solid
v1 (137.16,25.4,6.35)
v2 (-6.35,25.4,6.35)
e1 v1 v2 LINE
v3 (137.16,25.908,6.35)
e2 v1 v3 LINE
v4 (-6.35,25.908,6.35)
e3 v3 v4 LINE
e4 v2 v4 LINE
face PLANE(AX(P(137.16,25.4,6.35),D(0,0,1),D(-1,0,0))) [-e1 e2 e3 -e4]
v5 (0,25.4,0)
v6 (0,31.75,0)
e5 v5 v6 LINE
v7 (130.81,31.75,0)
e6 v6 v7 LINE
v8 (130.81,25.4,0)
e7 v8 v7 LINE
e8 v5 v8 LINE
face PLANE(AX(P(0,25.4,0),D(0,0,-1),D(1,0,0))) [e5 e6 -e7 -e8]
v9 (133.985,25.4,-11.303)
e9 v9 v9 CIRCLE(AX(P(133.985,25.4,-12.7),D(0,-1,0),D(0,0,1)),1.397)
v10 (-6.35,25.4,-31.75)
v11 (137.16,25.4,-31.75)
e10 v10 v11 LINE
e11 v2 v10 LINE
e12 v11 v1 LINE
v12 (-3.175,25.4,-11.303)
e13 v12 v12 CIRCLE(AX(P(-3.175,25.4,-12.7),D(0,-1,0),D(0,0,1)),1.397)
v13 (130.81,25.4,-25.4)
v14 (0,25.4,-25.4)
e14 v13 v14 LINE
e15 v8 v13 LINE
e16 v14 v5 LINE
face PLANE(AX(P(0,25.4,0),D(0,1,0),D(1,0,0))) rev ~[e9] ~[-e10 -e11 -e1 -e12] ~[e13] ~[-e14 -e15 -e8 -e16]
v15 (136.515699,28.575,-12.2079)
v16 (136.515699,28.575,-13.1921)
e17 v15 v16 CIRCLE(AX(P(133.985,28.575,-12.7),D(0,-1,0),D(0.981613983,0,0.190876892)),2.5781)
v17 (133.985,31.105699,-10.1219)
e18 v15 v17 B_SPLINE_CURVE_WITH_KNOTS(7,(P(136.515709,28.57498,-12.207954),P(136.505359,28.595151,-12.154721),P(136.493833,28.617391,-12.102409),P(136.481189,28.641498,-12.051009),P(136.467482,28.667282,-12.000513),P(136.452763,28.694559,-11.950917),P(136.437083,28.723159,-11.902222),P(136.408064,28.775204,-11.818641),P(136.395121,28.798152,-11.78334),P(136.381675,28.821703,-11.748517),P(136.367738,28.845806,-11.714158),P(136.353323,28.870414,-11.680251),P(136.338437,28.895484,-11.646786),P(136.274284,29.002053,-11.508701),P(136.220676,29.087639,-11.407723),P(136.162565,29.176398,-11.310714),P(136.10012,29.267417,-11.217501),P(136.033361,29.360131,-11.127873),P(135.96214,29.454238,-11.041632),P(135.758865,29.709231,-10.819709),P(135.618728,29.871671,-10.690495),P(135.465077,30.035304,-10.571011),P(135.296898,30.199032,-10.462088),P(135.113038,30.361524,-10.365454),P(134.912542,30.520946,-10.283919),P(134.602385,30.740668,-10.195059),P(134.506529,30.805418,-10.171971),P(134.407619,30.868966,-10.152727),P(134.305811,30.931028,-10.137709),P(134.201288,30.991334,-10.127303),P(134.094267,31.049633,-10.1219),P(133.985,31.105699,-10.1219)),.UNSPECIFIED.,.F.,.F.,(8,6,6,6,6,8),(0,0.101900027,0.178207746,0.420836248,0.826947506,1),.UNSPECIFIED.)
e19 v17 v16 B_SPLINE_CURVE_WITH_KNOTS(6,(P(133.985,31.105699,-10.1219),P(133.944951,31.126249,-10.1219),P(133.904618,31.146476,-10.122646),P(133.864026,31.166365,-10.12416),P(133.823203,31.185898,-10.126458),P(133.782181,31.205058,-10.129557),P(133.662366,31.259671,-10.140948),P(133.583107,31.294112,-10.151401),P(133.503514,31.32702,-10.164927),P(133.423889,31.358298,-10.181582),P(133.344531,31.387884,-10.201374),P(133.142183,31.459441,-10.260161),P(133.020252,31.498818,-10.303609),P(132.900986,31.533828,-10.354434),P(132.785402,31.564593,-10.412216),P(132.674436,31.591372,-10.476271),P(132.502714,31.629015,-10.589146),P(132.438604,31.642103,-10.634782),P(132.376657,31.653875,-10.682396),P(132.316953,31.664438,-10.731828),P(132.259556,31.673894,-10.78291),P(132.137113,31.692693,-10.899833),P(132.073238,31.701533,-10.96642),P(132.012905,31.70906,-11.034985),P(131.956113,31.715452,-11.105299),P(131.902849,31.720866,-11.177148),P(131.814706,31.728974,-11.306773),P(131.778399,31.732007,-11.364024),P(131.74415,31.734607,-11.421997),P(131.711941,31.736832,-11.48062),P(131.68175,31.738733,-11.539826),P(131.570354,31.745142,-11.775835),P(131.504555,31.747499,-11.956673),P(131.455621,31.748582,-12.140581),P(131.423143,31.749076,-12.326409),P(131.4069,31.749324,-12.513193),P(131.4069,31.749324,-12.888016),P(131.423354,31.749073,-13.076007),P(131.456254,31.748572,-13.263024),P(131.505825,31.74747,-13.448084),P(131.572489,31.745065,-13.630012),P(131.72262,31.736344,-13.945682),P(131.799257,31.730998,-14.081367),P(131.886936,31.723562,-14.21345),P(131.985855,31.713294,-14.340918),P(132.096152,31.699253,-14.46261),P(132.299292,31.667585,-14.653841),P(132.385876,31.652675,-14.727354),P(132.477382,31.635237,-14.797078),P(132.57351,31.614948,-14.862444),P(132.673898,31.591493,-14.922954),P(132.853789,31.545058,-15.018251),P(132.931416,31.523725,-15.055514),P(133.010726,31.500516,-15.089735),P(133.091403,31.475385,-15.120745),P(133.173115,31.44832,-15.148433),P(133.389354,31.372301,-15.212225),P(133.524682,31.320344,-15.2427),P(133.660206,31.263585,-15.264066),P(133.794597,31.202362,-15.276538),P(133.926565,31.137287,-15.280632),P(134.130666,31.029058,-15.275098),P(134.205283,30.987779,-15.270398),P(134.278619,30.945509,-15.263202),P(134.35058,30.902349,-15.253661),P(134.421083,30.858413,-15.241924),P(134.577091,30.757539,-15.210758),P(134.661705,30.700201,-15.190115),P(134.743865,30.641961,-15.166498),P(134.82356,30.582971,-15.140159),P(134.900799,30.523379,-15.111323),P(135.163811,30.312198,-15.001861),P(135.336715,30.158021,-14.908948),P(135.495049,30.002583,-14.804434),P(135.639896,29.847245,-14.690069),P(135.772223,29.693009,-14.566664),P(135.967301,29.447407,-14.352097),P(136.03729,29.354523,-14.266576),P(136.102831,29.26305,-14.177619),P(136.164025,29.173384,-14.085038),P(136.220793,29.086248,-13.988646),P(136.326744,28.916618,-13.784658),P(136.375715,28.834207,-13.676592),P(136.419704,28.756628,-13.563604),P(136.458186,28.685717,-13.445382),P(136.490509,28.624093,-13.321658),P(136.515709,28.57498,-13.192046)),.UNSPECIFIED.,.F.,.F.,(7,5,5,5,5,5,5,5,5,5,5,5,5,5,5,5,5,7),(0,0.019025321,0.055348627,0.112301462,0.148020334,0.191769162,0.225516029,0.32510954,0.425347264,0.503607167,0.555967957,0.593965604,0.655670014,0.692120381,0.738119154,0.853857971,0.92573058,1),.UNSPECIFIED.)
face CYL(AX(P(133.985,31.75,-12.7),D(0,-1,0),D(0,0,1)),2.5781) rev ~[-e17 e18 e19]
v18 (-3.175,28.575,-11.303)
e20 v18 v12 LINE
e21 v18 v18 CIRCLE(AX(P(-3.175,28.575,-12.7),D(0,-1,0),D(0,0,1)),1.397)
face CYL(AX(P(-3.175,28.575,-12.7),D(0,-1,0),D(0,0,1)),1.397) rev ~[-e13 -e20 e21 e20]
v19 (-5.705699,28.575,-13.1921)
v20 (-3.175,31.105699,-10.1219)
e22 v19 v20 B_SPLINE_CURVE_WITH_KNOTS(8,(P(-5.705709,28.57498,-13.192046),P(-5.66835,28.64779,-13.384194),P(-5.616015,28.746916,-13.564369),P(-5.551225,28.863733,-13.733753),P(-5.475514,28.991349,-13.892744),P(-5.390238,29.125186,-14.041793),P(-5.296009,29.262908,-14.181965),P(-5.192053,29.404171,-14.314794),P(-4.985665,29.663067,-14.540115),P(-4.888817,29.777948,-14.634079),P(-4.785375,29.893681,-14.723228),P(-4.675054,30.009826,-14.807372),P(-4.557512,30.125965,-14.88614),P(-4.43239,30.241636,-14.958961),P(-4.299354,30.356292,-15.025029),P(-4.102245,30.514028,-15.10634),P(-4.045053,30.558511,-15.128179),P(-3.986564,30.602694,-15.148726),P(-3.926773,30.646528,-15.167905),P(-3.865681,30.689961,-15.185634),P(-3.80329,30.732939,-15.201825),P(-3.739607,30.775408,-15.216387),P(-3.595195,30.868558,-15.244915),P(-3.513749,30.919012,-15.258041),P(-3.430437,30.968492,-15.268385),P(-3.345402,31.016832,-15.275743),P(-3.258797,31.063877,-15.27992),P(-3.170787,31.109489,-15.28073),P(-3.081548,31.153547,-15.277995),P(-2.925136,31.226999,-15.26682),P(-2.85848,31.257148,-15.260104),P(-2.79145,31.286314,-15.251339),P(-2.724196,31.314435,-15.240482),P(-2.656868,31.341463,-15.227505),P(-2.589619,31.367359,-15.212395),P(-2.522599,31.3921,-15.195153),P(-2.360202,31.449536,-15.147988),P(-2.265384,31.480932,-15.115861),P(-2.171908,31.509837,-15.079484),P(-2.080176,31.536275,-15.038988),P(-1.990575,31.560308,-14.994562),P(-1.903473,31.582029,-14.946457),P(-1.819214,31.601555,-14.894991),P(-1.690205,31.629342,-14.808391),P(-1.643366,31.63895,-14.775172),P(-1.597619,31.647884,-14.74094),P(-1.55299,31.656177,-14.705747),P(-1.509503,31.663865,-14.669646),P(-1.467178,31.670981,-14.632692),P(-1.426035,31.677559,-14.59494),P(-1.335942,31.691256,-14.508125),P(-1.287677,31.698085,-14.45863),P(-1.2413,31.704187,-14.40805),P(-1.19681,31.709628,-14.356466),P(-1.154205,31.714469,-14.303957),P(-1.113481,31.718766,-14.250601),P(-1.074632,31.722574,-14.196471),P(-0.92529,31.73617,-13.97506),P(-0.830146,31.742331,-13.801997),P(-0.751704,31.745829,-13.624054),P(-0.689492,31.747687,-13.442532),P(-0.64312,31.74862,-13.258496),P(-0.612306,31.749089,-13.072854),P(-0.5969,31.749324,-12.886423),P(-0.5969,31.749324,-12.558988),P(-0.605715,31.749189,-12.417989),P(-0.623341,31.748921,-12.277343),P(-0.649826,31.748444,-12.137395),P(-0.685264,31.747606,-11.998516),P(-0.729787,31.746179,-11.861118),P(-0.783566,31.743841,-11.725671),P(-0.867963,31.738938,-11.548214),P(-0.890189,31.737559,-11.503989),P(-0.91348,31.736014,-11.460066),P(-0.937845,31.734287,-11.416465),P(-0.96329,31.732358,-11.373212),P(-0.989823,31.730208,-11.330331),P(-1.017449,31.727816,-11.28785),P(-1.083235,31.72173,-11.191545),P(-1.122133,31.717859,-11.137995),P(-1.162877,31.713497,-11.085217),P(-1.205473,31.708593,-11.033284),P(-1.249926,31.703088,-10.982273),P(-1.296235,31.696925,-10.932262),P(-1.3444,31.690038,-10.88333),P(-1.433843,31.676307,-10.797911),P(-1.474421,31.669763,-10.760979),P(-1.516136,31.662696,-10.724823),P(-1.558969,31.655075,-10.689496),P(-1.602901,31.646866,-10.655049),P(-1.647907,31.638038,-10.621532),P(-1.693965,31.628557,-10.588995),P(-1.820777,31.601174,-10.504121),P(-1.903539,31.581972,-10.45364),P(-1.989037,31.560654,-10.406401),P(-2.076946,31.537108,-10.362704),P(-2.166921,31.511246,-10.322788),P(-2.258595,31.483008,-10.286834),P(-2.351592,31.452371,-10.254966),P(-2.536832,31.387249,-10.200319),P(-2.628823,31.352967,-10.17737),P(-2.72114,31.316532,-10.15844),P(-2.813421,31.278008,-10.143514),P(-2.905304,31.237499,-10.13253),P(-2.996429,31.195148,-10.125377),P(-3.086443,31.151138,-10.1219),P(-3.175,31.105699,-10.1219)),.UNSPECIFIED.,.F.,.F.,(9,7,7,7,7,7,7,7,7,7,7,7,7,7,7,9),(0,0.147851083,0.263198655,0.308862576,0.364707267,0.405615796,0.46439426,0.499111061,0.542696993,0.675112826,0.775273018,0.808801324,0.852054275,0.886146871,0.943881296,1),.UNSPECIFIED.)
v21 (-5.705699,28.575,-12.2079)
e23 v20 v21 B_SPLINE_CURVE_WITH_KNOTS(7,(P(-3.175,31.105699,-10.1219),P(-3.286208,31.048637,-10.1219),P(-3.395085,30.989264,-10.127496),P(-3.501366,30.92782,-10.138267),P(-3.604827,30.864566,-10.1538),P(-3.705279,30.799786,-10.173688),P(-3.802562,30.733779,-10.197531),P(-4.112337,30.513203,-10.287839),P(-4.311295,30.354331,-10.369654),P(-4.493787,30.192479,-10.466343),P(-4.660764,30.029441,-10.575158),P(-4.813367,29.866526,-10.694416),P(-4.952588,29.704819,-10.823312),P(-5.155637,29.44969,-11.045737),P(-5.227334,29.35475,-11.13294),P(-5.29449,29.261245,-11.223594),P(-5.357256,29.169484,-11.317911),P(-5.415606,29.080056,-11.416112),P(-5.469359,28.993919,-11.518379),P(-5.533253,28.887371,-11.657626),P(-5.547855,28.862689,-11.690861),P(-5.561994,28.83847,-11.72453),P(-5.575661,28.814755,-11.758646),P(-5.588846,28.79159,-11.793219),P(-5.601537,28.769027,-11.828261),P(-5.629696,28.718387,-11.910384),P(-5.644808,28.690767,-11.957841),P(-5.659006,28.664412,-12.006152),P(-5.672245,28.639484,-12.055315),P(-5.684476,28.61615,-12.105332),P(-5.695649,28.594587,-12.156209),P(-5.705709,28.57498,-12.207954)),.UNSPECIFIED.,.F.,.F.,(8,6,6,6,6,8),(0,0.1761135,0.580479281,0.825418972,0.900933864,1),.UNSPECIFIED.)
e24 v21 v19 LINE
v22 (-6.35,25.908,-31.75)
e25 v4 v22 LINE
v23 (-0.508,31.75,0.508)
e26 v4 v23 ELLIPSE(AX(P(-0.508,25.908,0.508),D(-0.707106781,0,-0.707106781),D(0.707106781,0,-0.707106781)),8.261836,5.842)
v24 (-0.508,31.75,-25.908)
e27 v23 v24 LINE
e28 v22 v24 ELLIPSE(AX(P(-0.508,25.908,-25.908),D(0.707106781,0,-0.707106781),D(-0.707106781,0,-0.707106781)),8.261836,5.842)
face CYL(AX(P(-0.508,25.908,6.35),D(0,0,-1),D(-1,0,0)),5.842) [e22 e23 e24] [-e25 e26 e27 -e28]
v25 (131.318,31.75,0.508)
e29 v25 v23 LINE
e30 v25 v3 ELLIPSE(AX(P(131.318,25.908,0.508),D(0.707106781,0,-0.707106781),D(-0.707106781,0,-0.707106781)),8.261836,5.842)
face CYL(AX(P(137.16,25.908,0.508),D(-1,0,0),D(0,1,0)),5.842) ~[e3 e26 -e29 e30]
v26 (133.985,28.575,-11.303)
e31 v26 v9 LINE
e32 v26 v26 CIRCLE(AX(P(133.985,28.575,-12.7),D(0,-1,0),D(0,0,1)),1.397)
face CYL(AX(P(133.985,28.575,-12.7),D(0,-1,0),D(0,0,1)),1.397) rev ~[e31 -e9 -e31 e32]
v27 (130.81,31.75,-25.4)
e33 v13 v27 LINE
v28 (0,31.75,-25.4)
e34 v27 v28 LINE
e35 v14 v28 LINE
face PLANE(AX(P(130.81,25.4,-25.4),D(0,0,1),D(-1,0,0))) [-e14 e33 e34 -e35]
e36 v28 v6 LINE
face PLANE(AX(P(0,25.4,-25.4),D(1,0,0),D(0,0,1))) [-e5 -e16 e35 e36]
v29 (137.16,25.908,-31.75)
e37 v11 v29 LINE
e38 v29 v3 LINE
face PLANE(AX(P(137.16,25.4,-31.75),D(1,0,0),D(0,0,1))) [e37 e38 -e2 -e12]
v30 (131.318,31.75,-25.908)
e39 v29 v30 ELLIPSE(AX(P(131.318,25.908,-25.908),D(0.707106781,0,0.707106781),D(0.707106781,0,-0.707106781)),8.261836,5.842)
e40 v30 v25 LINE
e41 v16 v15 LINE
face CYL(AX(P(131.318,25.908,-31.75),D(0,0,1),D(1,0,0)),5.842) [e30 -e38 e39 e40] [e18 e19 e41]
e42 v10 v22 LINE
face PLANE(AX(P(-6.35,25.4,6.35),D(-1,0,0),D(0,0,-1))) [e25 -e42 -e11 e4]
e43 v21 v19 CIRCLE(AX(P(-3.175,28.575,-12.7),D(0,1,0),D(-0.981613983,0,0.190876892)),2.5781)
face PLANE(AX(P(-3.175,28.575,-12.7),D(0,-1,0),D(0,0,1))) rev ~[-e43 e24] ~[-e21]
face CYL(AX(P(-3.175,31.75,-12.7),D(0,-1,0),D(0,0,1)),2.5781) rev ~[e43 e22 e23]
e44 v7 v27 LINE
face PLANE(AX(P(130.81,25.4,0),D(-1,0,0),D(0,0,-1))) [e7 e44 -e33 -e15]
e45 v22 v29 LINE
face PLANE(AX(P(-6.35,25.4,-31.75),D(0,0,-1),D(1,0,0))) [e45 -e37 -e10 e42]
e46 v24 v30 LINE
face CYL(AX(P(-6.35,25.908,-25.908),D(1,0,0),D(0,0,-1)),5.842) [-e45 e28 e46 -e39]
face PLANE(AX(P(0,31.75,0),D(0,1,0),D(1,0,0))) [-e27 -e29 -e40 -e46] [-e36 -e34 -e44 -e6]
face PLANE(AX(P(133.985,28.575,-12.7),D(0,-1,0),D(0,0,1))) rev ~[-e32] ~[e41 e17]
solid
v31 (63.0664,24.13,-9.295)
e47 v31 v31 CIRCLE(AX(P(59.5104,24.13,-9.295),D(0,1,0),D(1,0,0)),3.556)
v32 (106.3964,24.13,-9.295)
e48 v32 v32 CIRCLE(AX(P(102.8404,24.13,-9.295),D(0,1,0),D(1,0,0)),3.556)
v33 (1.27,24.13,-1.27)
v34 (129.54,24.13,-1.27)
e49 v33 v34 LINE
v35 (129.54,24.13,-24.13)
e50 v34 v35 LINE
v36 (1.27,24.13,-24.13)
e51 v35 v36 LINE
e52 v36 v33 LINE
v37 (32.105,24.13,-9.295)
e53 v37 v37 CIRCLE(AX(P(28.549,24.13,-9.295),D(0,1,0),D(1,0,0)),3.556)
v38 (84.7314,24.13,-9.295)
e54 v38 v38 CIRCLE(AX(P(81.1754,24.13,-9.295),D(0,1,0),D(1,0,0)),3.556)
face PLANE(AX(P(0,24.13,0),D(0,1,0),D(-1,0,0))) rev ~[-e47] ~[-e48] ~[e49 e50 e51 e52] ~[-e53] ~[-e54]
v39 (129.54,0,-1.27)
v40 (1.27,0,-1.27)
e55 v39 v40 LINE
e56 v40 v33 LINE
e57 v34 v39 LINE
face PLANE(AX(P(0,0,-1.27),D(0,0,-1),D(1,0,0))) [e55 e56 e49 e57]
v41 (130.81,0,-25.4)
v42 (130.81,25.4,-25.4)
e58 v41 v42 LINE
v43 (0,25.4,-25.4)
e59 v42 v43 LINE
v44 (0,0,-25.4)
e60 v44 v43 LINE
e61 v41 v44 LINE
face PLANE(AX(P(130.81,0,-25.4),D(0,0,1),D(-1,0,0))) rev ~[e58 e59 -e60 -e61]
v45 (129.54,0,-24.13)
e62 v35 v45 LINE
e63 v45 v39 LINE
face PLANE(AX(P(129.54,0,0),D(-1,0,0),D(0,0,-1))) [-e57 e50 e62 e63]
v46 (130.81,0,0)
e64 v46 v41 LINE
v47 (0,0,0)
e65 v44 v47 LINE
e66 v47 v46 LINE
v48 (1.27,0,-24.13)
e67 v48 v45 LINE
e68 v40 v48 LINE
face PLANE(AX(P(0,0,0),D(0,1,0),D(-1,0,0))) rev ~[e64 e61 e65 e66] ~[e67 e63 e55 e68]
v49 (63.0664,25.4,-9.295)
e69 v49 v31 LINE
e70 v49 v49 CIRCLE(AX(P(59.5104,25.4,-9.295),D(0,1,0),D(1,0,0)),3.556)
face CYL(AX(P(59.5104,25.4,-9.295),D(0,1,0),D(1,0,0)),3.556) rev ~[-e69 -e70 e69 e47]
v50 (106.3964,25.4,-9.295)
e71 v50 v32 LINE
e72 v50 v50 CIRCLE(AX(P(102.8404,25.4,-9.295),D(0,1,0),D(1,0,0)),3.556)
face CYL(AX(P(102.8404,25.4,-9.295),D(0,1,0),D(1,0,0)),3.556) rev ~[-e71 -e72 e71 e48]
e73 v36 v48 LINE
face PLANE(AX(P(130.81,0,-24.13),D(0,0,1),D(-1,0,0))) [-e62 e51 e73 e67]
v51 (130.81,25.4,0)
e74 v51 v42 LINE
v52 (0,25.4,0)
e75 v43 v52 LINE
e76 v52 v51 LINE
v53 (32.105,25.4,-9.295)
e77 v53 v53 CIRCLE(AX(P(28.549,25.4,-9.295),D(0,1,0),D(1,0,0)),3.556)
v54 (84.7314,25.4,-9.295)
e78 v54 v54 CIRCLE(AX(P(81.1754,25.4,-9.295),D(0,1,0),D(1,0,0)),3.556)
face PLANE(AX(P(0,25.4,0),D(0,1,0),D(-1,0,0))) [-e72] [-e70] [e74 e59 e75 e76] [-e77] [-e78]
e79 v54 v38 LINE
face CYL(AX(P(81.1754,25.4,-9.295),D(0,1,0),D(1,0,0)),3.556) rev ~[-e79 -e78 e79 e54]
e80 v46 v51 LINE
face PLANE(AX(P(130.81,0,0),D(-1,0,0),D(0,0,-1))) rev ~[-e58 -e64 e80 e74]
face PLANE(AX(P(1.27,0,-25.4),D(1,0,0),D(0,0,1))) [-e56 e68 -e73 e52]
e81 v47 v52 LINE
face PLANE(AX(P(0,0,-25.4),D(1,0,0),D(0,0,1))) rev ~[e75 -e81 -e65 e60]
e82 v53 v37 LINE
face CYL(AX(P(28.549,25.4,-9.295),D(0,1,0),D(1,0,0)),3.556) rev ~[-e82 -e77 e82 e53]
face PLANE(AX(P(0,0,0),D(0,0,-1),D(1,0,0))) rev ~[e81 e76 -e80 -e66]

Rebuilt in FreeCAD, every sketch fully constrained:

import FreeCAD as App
import Part
import Sketcher

V = App.Vector
Q = App.Units.Quantity


def edges_at(feature, points):
    """Names of the edges that pass closest to the given points."""
    edges = feature.Shape.Edges
    near = lambda p: min(range(len(edges)), key=lambda i: edges[i].distToShape(Part.Vertex(*p))[0])
    return sorted({f"Edge{near(p) + 1}" for p in points})


def faces_at(feature, points):
    """Names of the faces that lie closest to the given points."""
    faces = feature.Shape.Faces
    near = lambda p: min(range(len(faces)), key=lambda i: faces[i].distToShape(Part.Vertex(*p))[0])
    return sorted({f"Face{near(p) + 1}" for p in points})

doc = App.newDocument("Part")
body = doc.addObject("PartDesign::Body", "Body")
body.AllowCompound = True

sketch1 = body.newObject("Sketcher::SketchObject", "Sketch")
sketch1.AttachmentSupport = (doc.getObject("XZ_Plane"), [""])
sketch1.MapMode = "FlatFace"
sketch1.addGeometry([
    Part.LineSegment(V(0, -25, 0), V(0, 0, 0)),
    Part.LineSegment(V(0, 0, 0), V(131, 0, 0)),
    Part.LineSegment(V(131, 0, 0), V(131, -25, 0)),
    Part.LineSegment(V(131, -25, 0), V(0, -25, 0)),
], False)
sketch1.addConstraint([
    Sketcher.Constraint("Coincident", 0, 2, 1, 1),
    Sketcher.Constraint("Coincident", 1, 2, 2, 1),
    Sketcher.Constraint("Coincident", 2, 2, 3, 1),
    Sketcher.Constraint("Coincident", 3, 2, 0, 1),
    Sketcher.Constraint("Vertical", 0),
    Sketcher.Constraint("Horizontal", 1),
    Sketcher.Constraint("Vertical", 2),
    Sketcher.Constraint("Horizontal", 3),
    Sketcher.Constraint("Coincident", 0, 2, -1, 1),
    Sketcher.Constraint("DistanceY", 0, 1, 0, 2, Q("1 in")),
    Sketcher.Constraint("DistanceX", 1, 1, 1, 2, Q("5.15 in")),
])
pad1 = body.newObject("PartDesign::Pad", "Pad")
pad1.Profile = sketch1
pad1.Length = Q("1 in")
pad1.Reversed = True
doc.recompute()

thickness = body.newObject("PartDesign::Thickness", "Thickness")
thickness.Base = (pad1, faces_at(pad1, [(87.207, 0, -8.467)]))
thickness.Value = Q("0.05 in")
thickness.Reversed = True
thickness.Join = "Intersection"

sketch2 = body.newObject("Sketcher::SketchObject", "Sketch001")
sketch2.AttachmentSupport = (doc.getObject("XZ_Plane"), [""])
sketch2.MapMode = "FlatFace"
sketch2.AttachmentOffset = App.Placement(V(0, 0, -1 * 25.4), App.Rotation())
sketch2.addGeometry([
    Part.Circle(V(28.5, -9.3, 0), V(0, 0, 1), 3.6),
    Part.Circle(V(59.5, -9.3, 0), V(0, 0, 1), 3.6),
    Part.Circle(V(81.2, -9.3, 0), V(0, 0, 1), 3.6),
    Part.Circle(V(102.8, -9.3, 0), V(0, 0, 1), 3.6),
], False)
sketch2.addConstraint([
    Sketcher.Constraint("Equal", 0, 1),
    Sketcher.Constraint("Equal", 1, 2),
    Sketcher.Constraint("Equal", 2, 3),
    Sketcher.Constraint("Horizontal", 0, 3, 1, 3),
    Sketcher.Constraint("Horizontal", 1, 3, 2, 3),
    Sketcher.Constraint("Horizontal", 2, 3, 3, 3),
    Sketcher.Constraint("Diameter", 0, Q("0.28 in")),
    Sketcher.Constraint("DistanceX", 0, 3, 2, 3, Q("2.0719 in")),
    Sketcher.Constraint("DistanceX", 1, 3, 3, 3, Q("1.7059 in")),
    Sketcher.Constraint("DistanceX", -1, 1, 0, 3, Q("28.549 mm")),
    Sketcher.Constraint("DistanceY", 0, 3, -1, 1, Q("9.295 mm")),
    Sketcher.Constraint("DistanceX", -1, 1, 1, 3, Q("59.5104 mm")),
])
pocket1 = body.newObject("PartDesign::Pocket", "Pocket")
pocket1.Profile = sketch2
pocket1.Length = Q("1 in")
pocket1.Reversed = True

sketch3 = body.newObject("Sketcher::SketchObject", "Sketch002")
sketch3.AttachmentSupport = (doc.getObject("XZ_Plane"), [""])
sketch3.MapMode = "FlatFace"
sketch3.AttachmentOffset = App.Placement(V(0, 0, -1 * 25.4), App.Rotation())
sketch3.addGeometry([
    Part.LineSegment(V(137, -32, 0), V(-6, -32, 0)),
    Part.LineSegment(V(-6, -32, 0), V(-6, 6, 0)),
    Part.LineSegment(V(-6, 6, 0), V(137, 6, 0)),
    Part.LineSegment(V(137, 6, 0), V(137, -32, 0)),
    Part.LineSegment(V(131, 0, 0), V(0, 0, 0)),
    Part.LineSegment(V(0, 0, 0), V(0, -25, 0)),
    Part.LineSegment(V(0, -25, 0), V(131, -25, 0)),
    Part.LineSegment(V(131, -25, 0), V(131, 0, 0)),
], False)
sketch3.addConstraint([
    Sketcher.Constraint("Coincident", 0, 2, 1, 1),
    Sketcher.Constraint("Coincident", 1, 2, 2, 1),
    Sketcher.Constraint("Coincident", 2, 2, 3, 1),
    Sketcher.Constraint("Coincident", 3, 2, 0, 1),
    Sketcher.Constraint("Coincident", 4, 2, 5, 1),
    Sketcher.Constraint("Coincident", 5, 2, 6, 1),
    Sketcher.Constraint("Coincident", 6, 2, 7, 1),
    Sketcher.Constraint("Coincident", 7, 2, 4, 1),
    Sketcher.Constraint("Horizontal", 0),
    Sketcher.Constraint("Vertical", 1),
    Sketcher.Constraint("Horizontal", 2),
    Sketcher.Constraint("Vertical", 3),
    Sketcher.Constraint("Horizontal", 4),
    Sketcher.Constraint("Vertical", 5),
    Sketcher.Constraint("Horizontal", 6),
    Sketcher.Constraint("Vertical", 7),
    Sketcher.Constraint("Coincident", 4, 2, -1, 1),
    Sketcher.Constraint("DistanceY", 5, 2, 5, 1, Q("1 in")),
    Sketcher.Constraint("DistanceX", 0, 2, -1, 1, Q("0.25 in")),
    Sketcher.Constraint("DistanceY", -1, 1, 1, 2, Q("0.25 in")),
    Sketcher.Constraint("DistanceY", 0, 2, 5, 2, Q("0.25 in")),
    Sketcher.Constraint("DistanceX", 6, 2, 3, 2, Q("0.25 in")),
    Sketcher.Constraint("DistanceX", 0, 2, 0, 1, Q("5.65 in")),
])
pad2 = body.newObject("PartDesign::Pad", "Pad001")
pad2.Profile = sketch3
pad2.Length = Q("0.25 in")
pad2.Reversed = True
doc.recompute()

fillet = body.newObject("PartDesign::Fillet", "Fillet")
fillet.Base = (pad2, edges_at(pad2, [
    (-6.35, 31.75, -12.7),
    (65.405, 31.75, -31.75),
    (65.405, 31.75, 6.35),
    (137.16, 31.75, -12.7),
]))
fillet.Radius = Q("0.23 in")

sketch4 = body.newObject("Sketcher::SketchObject", "Sketch003")
sketch4.AttachmentSupport = (doc.getObject("XZ_Plane"), [""])
sketch4.MapMode = "FlatFace"
sketch4.AttachmentOffset = App.Placement(V(0, 0, -1.25 * 25.4), App.Rotation())
sketch4.addGeometry([
    Part.Circle(V(-3.2, -12.7, 0), V(0, 0, 1), 1.4),
    Part.Circle(V(134, -12.7, 0), V(0, 0, 1), 1.4),
], False)
sketch4.addConstraint([
    Sketcher.Constraint("Equal", 0, 1),
    Sketcher.Constraint("Horizontal", 0, 3, 1, 3),
    Sketcher.Constraint("Diameter", 0, Q("0.11 in")),
    Sketcher.Constraint("DistanceY", 0, 3, -1, 1, Q("0.5 in")),
    Sketcher.Constraint("DistanceX", 0, 3, 1, 3, Q("5.4 in")),
    Sketcher.Constraint("DistanceX", 0, 3, -1, 1, Q("0.125 in")),
])
doc.recompute()
hole = body.newObject("PartDesign::Hole", "Hole")
hole.Profile = sketch4
hole.ThreadType = "None"
hole.Diameter = Q("0.11 in")
hole.DepthType = "ThroughAll"
hole.HoleCutType = "Counterbore"
hole.HoleCutDiameter = Q("0.203 in")
hole.HoleCutDepth = Q("0.125 in")
hole.Reversed = True

doc.recompute()
